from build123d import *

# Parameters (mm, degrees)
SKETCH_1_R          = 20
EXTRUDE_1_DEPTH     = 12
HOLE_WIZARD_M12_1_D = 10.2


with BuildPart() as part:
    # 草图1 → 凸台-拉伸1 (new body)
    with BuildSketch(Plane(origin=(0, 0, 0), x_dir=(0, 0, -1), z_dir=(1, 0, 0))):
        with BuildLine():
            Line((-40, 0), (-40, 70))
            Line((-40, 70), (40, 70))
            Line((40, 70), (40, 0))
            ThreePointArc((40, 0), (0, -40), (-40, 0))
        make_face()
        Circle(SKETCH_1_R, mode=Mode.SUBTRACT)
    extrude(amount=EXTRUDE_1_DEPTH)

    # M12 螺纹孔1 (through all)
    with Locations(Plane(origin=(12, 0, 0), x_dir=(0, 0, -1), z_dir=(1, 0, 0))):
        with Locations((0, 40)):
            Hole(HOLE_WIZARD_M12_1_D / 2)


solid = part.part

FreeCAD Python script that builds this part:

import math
import FreeCAD as App
import Part
import Sketcher
from FreeCAD import Vector

doc = App.newDocument("Part")
body = doc.addObject("PartDesign::Body", "Body")

# Sketch on YZ plane
sketch1 = doc.addObject("Sketcher::SketchObject", "Sketch")
body.addObject(sketch1)
sketch1.AttachmentSupport = (doc.YZ_Plane, [""])
sketch1.MapMode = "FlatFace"
sketch1.addGeometry(Part.LineSegment(Vector(70, 40, 0), Vector(0, 40, 0)), False)
sketch1.addGeometry(Part.ArcOfCircle(Part.Circle(Vector(0, 0, 0), Vector(0, 0, 1), 40), math.radians(90), math.radians(270)), False)
sketch1.addGeometry(Part.LineSegment(Vector(0, -40, 0), Vector(70, -40, 0)), False)
sketch1.addGeometry(Part.LineSegment(Vector(70, -40, 0), Vector(70, 40, 0)), False)
sketch1.addGeometry(Part.Circle(Vector(0, 0, 0), Vector(0, 0, 1), 20), False)
sketch1.addConstraint(Sketcher.Constraint("Tangent", 0, 2, 1, 1))
sketch1.addConstraint(Sketcher.Constraint("Tangent", 1, 2, 2, 1))
sketch1.addConstraint(Sketcher.Constraint("Coincident", 2, 2, 3, 1))
sketch1.addConstraint(Sketcher.Constraint("Coincident", 3, 2, 0, 1))
sketch1.addConstraint(Sketcher.Constraint("Horizontal", 0))
sketch1.addConstraint(Sketcher.Constraint("Horizontal", 2))
sketch1.addConstraint(Sketcher.Constraint("Vertical", 3))
sketch1.addConstraint(Sketcher.Constraint("Coincident", 1, 3, -1, 1))
sketch1.addConstraint(Sketcher.Constraint("Coincident", 4, 3, -1, 1))
sketch1.addConstraint(Sketcher.Constraint("Diameter", 4, 40.0))
sketch1.addConstraint(Sketcher.Constraint("Radius", 1, 40.0))
sketch1.addConstraint(Sketcher.Constraint("DistanceX", 0, 2, 0, 1, 70.0))
pad1 = doc.addObject("PartDesign::Pad", "Pad")
body.addObject(pad1)
pad1.Profile = sketch1
pad1.Length = 12

# Sketch on YZ plane
sketch2 = doc.addObject("Sketcher::SketchObject", "Sketch001")
body.addObject(sketch2)
sketch2.AttachmentSupport = (doc.YZ_Plane, [""])
sketch2.MapMode = "FlatFace"
sketch2.AttachmentOffset = App.Placement(Vector(0, 0, 12), App.Rotation())
sketch2.addGeometry(Part.Circle(Vector(40, 0, 0), Vector(0, 0, 1), 5), False)
sketch2.addConstraint(Sketcher.Constraint("PointOnObject", 0, 3, -1))
sketch2.addConstraint(Sketcher.Constraint("Diameter", 0, 10.2))
sketch2.addConstraint(Sketcher.Constraint("DistanceX", -1, 1, 0, 3, 40.0))
doc.recompute()
hole = doc.addObject("PartDesign::Hole", "Hole")
body.addObject(hole)
hole.Profile = sketch2
hole.ThreadType = "None"
hole.Diameter = 10.2
hole.DepthType = "ThroughAll"

doc.recompute()
